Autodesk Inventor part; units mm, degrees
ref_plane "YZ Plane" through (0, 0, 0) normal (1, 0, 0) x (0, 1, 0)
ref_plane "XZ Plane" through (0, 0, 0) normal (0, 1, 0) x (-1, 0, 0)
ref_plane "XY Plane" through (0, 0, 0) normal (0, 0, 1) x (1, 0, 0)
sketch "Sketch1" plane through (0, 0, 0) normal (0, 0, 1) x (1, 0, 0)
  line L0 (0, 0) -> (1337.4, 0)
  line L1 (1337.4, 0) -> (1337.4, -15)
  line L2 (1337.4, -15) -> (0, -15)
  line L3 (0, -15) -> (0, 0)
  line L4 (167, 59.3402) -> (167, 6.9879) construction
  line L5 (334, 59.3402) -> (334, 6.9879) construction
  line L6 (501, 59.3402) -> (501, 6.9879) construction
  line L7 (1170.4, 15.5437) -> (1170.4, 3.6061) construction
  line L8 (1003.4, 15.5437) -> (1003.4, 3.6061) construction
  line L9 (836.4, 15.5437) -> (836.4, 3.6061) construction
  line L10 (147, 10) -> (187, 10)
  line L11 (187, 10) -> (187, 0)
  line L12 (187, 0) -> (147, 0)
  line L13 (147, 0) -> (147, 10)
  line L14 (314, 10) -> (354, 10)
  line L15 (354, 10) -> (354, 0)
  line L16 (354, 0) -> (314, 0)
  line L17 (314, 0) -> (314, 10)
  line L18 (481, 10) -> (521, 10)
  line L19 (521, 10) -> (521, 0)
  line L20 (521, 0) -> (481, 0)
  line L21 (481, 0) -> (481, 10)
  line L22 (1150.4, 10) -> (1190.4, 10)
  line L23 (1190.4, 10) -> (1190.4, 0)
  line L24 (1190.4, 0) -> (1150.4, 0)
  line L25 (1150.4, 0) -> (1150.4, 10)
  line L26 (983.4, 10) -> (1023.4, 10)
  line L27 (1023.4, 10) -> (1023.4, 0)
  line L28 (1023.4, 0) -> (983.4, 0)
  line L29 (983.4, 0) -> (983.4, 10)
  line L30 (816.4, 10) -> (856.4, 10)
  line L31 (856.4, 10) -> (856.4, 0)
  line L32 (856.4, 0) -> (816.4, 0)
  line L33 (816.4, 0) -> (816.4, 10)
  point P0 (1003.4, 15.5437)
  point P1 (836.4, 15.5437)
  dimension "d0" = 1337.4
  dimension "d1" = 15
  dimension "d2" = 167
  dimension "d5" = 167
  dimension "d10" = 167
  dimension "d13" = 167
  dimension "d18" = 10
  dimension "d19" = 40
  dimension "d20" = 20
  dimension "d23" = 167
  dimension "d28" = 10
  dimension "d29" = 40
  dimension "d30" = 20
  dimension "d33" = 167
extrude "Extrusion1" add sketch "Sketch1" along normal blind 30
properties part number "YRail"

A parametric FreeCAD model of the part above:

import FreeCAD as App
import Part
import Sketcher

V = App.Vector

doc = App.newDocument("Part")
body = doc.addObject("PartDesign::Body", "Body")

# Sketch on XY plane
sketch1 = body.newObject("Sketcher::SketchObject", "Sketch")
sketch1.AttachmentSupport = (doc.getObject("XY_Plane"), [""])
sketch1.MapMode = "FlatFace"
sketch1.addGeometry([
    Part.LineSegment(V(147, 0, 0), V(0, 0, 0)),  # 0
    Part.LineSegment(V(0, 0, 0), V(0, -15, 0)),  # 1
    Part.LineSegment(V(0, -15, 0), V(1337, -15, 0)),  # 2
    Part.LineSegment(V(1337, -15, 0), V(1337, 0, 0)),  # 3
    Part.LineSegment(V(1337, 0, 0), V(1190, 0, 0)),  # 4
    Part.LineSegment(V(1190, 0, 0), V(1190, 10, 0)),  # 5
    Part.LineSegment(V(1190, 10, 0), V(1150, 10, 0)),  # 6
    Part.LineSegment(V(1150, 10, 0), V(1150, 0, 0)),  # 7
    Part.LineSegment(V(1150, 0, 0), V(1023, 0, 0)),  # 8
    Part.LineSegment(V(1023, 0, 0), V(1023, 10, 0)),  # 9
    Part.LineSegment(V(1023, 10, 0), V(983, 10, 0)),  # 10
    Part.LineSegment(V(983, 10, 0), V(983, 0, 0)),  # 11
    Part.LineSegment(V(983, 0, 0), V(856, 0, 0)),  # 12
    Part.LineSegment(V(856, 0, 0), V(856, 10, 0)),  # 13
    Part.LineSegment(V(856, 10, 0), V(816, 10, 0)),  # 14
    Part.LineSegment(V(816, 10, 0), V(816, 0, 0)),  # 15
    Part.LineSegment(V(816, 0, 0), V(521, 0, 0)),  # 16
    Part.LineSegment(V(521, 0, 0), V(521, 10, 0)),  # 17
    Part.LineSegment(V(521, 10, 0), V(481, 10, 0)),  # 18
    Part.LineSegment(V(481, 10, 0), V(481, 0, 0)),  # 19
    Part.LineSegment(V(481, 0, 0), V(354, 0, 0)),  # 20
    Part.LineSegment(V(354, 0, 0), V(354, 10, 0)),  # 21
    Part.LineSegment(V(354, 10, 0), V(314, 10, 0)),  # 22
    Part.LineSegment(V(314, 10, 0), V(314, 0, 0)),  # 23
    Part.LineSegment(V(314, 0, 0), V(187, 0, 0)),  # 24
    Part.LineSegment(V(187, 0, 0), V(187, 10, 0)),  # 25
    Part.LineSegment(V(187, 10, 0), V(147, 10, 0)),  # 26
    Part.LineSegment(V(147, 10, 0), V(147, 0, 0)),  # 27
], False)
sketch1.addConstraint([
    Sketcher.Constraint("Coincident", 0, 2, 1, 1),
    Sketcher.Constraint("Coincident", 1, 2, 2, 1),
    Sketcher.Constraint("Coincident", 2, 2, 3, 1),
    Sketcher.Constraint("Coincident", 3, 2, 4, 1),
    Sketcher.Constraint("Coincident", 4, 2, 5, 1),
    Sketcher.Constraint("Coincident", 5, 2, 6, 1),
    Sketcher.Constraint("Coincident", 6, 2, 7, 1),
    Sketcher.Constraint("Coincident", 7, 2, 8, 1),
    Sketcher.Constraint("Coincident", 8, 2, 9, 1),
    Sketcher.Constraint("Coincident", 9, 2, 10, 1),
    Sketcher.Constraint("Coincident", 10, 2, 11, 1),
    Sketcher.Constraint("Coincident", 11, 2, 12, 1),
    Sketcher.Constraint("Coincident", 12, 2, 13, 1),
    Sketcher.Constraint("Coincident", 13, 2, 14, 1),
    Sketcher.Constraint("Coincident", 14, 2, 15, 1),
    Sketcher.Constraint("Coincident", 15, 2, 16, 1),
    Sketcher.Constraint("Coincident", 16, 2, 17, 1),
    Sketcher.Constraint("Coincident", 17, 2, 18, 1),
    Sketcher.Constraint("Coincident", 18, 2, 19, 1),
    Sketcher.Constraint("Coincident", 19, 2, 20, 1),
    Sketcher.Constraint("Coincident", 20, 2, 21, 1),
    Sketcher.Constraint("Coincident", 21, 2, 22, 1),
    Sketcher.Constraint("Coincident", 22, 2, 23, 1),
    Sketcher.Constraint("Coincident", 23, 2, 24, 1),
    Sketcher.Constraint("Coincident", 24, 2, 25, 1),
    Sketcher.Constraint("Coincident", 25, 2, 26, 1),
    Sketcher.Constraint("Coincident", 26, 2, 27, 1),
    Sketcher.Constraint("Coincident", 27, 2, 0, 1),
    Sketcher.Constraint("Horizontal", 0),
    Sketcher.Constraint("Vertical", 1),
    Sketcher.Constraint("Horizontal", 2),
    Sketcher.Constraint("Vertical", 3),
    Sketcher.Constraint("Horizontal", 4),
    Sketcher.Constraint("Vertical", 5),
    Sketcher.Constraint("Horizontal", 6),
    Sketcher.Constraint("Vertical", 7),
    Sketcher.Constraint("Horizontal", 8),
    Sketcher.Constraint("Vertical", 9),
    Sketcher.Constraint("Horizontal", 10),
    Sketcher.Constraint("Vertical", 11),
    Sketcher.Constraint("Horizontal", 12),
    Sketcher.Constraint("Vertical", 13),
    Sketcher.Constraint("Horizontal", 14),
    Sketcher.Constraint("Vertical", 15),
    Sketcher.Constraint("Horizontal", 16),
    Sketcher.Constraint("Vertical", 17),
    Sketcher.Constraint("Horizontal", 18),
    Sketcher.Constraint("Vertical", 19),
    Sketcher.Constraint("Horizontal", 20),
    Sketcher.Constraint("Vertical", 21),
    Sketcher.Constraint("Horizontal", 22),
    Sketcher.Constraint("Vertical", 23),
    Sketcher.Constraint("Horizontal", 24),
    Sketcher.Constraint("Vertical", 25),
    Sketcher.Constraint("Horizontal", 26),
    Sketcher.Constraint("Vertical", 27),
    Sketcher.Constraint("Coincident", 0, 2, -1, 1),
    Sketcher.Constraint("PointOnObject", 3, 2, -1),
    Sketcher.Constraint("PointOnObject", 7, 2, -1),
    Sketcher.Constraint("PointOnObject", 11, 2, -1),
    Sketcher.Constraint("PointOnObject", 15, 2, -1),
    Sketcher.Constraint("PointOnObject", 19, 2, -1),
    Sketcher.Constraint("PointOnObject", 23, 2, -1),
    Sketcher.Constraint("Horizontal", 6, 2, 9, 2),
    Sketcher.Constraint("Horizontal", 10, 2, 13, 2),
    Sketcher.Constraint("Horizontal", 14, 2, 17, 2),
    Sketcher.Constraint("Horizontal", 18, 2, 21, 2),
    Sketcher.Constraint("Horizontal", 22, 2, 25, 2),
    Sketcher.Constraint("Equal", 0, 4),
    Sketcher.Constraint("Equal", 6, 10),
    Sketcher.Constraint("Equal", 8, 12),
    Sketcher.Constraint("Equal", 10, 14),
    Sketcher.Constraint("Equal", 14, 18),
    Sketcher.Constraint("Equal", 12, 20),
    Sketcher.Constraint("Equal", 18, 22),
    Sketcher.Constraint("Equal", 20, 24),
    Sketcher.Constraint("Equal", 22, 26),
    Sketcher.Constraint("DistanceX", 6, 2, 6, 1, 40.0),
    Sketcher.Constraint("DistanceY", 1, 2, 1, 1, 15.0),
    Sketcher.Constraint("DistanceY", 5, 1, 5, 2, 10.0),
    Sketcher.Constraint("DistanceX", 2, 1, 2, 2, 1337.4),
    Sketcher.Constraint("DistanceX", 8, 2, 4, 2, 167.0),
    Sketcher.Constraint("DistanceX", 0, 2, 0, 1, 147.0),
])
pad1 = body.newObject("PartDesign::Pad", "Pad")
pad1.Profile = sketch1
pad1.Length = 30

doc.recompute()
